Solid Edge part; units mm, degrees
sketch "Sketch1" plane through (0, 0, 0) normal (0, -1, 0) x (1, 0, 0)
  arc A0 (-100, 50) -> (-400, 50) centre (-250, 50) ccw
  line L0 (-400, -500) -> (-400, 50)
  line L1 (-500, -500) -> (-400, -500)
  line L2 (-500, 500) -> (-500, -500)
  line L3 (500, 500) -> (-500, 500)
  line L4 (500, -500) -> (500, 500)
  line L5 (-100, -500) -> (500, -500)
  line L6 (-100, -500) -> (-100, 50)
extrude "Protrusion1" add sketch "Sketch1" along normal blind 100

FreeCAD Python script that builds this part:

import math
import FreeCAD as App
import Part
import Sketcher

V = App.Vector

doc = App.newDocument("Part")
body = doc.addObject("PartDesign::Body", "Body")

sketch1 = body.newObject("Sketcher::SketchObject", "Sketch")
sketch1.AttachmentSupport = (doc.getObject("XZ_Plane"), [""])
sketch1.MapMode = "FlatFace"
sketch1.addGeometry([
    Part.ArcOfCircle(Part.Circle(V(-250, 50, 0), V(0, 0, 1), 150), math.radians(0), math.radians(180)),
    Part.LineSegment(V(-100, 50, 0), V(-100, -500, 0)),
    Part.LineSegment(V(-100, -500, 0), V(500, -500, 0)),
    Part.LineSegment(V(500, -500, 0), V(500, 500, 0)),
    Part.LineSegment(V(500, 500, 0), V(-500, 500, 0)),
    Part.LineSegment(V(-500, 500, 0), V(-500, -500, 0)),
    Part.LineSegment(V(-500, -500, 0), V(-400, -500, 0)),
    Part.LineSegment(V(-400, -500, 0), V(-400, 50, 0)),
], False)
sketch1.addConstraint([
    Sketcher.Constraint("Tangent", 0, 1, 1, 1),
    Sketcher.Constraint("Coincident", 1, 2, 2, 1),
    Sketcher.Constraint("Coincident", 2, 2, 3, 1),
    Sketcher.Constraint("Coincident", 3, 2, 4, 1),
    Sketcher.Constraint("Coincident", 4, 2, 5, 1),
    Sketcher.Constraint("Coincident", 5, 2, 6, 1),
    Sketcher.Constraint("Coincident", 6, 2, 7, 1),
    Sketcher.Constraint("Tangent", 7, 2, 0, 2),
    Sketcher.Constraint("Vertical", 1),
    Sketcher.Constraint("Horizontal", 2),
    Sketcher.Constraint("Vertical", 3),
    Sketcher.Constraint("Horizontal", 4),
    Sketcher.Constraint("Vertical", 5),
    Sketcher.Constraint("Horizontal", 6),
    Sketcher.Constraint("Vertical", 7),
    Sketcher.Constraint("Symmetric", 2, 2, 4, 2, -1, 1),
    Sketcher.Constraint("Horizontal", 2, 2, 5, 2),
    Sketcher.Constraint("Equal", 4, 3),
    Sketcher.Constraint("Radius", 0, 150.0),
    Sketcher.Constraint("DistanceX", 2, 1, 2, 2, 600.0),
    Sketcher.Constraint("DistanceX", 4, 2, 4, 1, 1000.0),
    Sketcher.Constraint("DistanceY", 1, 2, 1, 1, 550.0),
])
pad1 = body.newObject("PartDesign::Pad", "Pad")
pad1.Profile = sketch1
pad1.Length = 100

doc.recompute()
